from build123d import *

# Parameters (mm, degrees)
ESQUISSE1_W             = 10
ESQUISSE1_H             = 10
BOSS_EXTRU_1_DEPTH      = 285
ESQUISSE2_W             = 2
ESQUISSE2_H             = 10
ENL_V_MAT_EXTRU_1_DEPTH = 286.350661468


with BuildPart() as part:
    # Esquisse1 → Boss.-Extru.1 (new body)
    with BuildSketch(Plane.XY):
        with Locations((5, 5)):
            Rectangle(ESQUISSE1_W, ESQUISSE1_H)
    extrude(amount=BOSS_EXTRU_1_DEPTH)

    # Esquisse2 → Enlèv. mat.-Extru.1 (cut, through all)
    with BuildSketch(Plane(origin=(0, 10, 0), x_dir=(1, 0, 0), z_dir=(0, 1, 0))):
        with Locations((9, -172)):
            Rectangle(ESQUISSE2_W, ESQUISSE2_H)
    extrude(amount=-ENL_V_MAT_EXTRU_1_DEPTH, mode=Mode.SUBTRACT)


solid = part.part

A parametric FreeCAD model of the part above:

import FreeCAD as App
import Part
import Sketcher

V = App.Vector

doc = App.newDocument("Part")
params = doc.addObject("Spreadsheet::Sheet", "Params")
for row, (alias, value) in enumerate([
    ("sketch1_width", "10 mm"),
    ("pad1_length", "285 mm"),
    ("sketch2_width", "2 mm"),
    ("sketch2_height", "10 mm"),
], start=1):
    params.set(f"A{row}", alias)
    params.set(f"B{row}", "=" + value)
    params.setAlias(f"B{row}", alias)

body = doc.addObject("PartDesign::Body", "Body")

sketch1 = body.newObject("Sketcher::SketchObject", "Sketch")
sketch1.AttachmentSupport = (doc.getObject("XY_Plane"), [""])
sketch1.MapMode = "FlatFace"
sketch1.addGeometry([
    Part.LineSegment(V(0, 10, 0), V(0, 0, 0)),
    Part.LineSegment(V(0, 0, 0), V(10, 0, 0)),
    Part.LineSegment(V(10, 0, 0), V(10, 10, 0)),
    Part.LineSegment(V(10, 10, 0), V(0, 10, 0)),
], False)
sketch1.addConstraint([
    Sketcher.Constraint("Coincident", 0, 2, 1, 1),
    Sketcher.Constraint("Coincident", 1, 2, 2, 1),
    Sketcher.Constraint("Coincident", 2, 2, 3, 1),
    Sketcher.Constraint("Coincident", 3, 2, 0, 1),
    Sketcher.Constraint("Vertical", 0),
    Sketcher.Constraint("Horizontal", 1),
    Sketcher.Constraint("Vertical", 2),
    Sketcher.Constraint("Horizontal", 3),
    Sketcher.Constraint("Coincident", 0, 2, -1, 1),
    Sketcher.Constraint("Equal", 3, 0),
    Sketcher.Constraint("DistanceX", 1, 1, 1, 2, 10.0),
])
sketch1.setExpression("Constraints[10]", "Params.sketch1_width")
pad1 = body.newObject("PartDesign::Pad", "Pad")
pad1.Profile = sketch1
pad1.setExpression("Length", "Params.pad1_length")

sketch2 = body.newObject("Sketcher::SketchObject", "Sketch001")
sketch2.AttachmentSupport = (doc.getObject("XZ_Plane"), [""])
sketch2.MapMode = "FlatFace"
sketch2.AttachmentOffset = App.Placement(V(0, 0, -10), App.Rotation())
sketch2.addGeometry([
    Part.LineSegment(V(8, 167, 0), V(8, 177, 0)),
    Part.LineSegment(V(8, 177, 0), V(10, 177, 0)),
    Part.LineSegment(V(10, 177, 0), V(10, 167, 0)),
    Part.LineSegment(V(10, 167, 0), V(8, 167, 0)),
], False)
sketch2.addConstraint([
    Sketcher.Constraint("Coincident", 0, 2, 1, 1),
    Sketcher.Constraint("Coincident", 1, 2, 2, 1),
    Sketcher.Constraint("Coincident", 2, 2, 3, 1),
    Sketcher.Constraint("Coincident", 3, 2, 0, 1),
    Sketcher.Constraint("Vertical", 0),
    Sketcher.Constraint("Horizontal", 1),
    Sketcher.Constraint("Vertical", 2),
    Sketcher.Constraint("Horizontal", 3),
    Sketcher.Constraint("DistanceX", 1, 1, 1, 2, 2.0),
    Sketcher.Constraint("DistanceY", 0, 1, 0, 2, 10.0),
    Sketcher.Constraint("DistanceX", -1, 1, 0, 2, 8.0),
    Sketcher.Constraint("DistanceY", -1, 1, 0, 2, 177.0),
])
sketch2.setExpression("Constraints[8]", "Params.sketch2_width")
sketch2.setExpression("Constraints[9]", "Params.sketch2_height")
pocket1 = body.newObject("PartDesign::Pocket", "Pocket")
pocket1.Profile = sketch2
pocket1.Type = "ThroughAll"
pocket1.Reversed = True

doc.recompute()
